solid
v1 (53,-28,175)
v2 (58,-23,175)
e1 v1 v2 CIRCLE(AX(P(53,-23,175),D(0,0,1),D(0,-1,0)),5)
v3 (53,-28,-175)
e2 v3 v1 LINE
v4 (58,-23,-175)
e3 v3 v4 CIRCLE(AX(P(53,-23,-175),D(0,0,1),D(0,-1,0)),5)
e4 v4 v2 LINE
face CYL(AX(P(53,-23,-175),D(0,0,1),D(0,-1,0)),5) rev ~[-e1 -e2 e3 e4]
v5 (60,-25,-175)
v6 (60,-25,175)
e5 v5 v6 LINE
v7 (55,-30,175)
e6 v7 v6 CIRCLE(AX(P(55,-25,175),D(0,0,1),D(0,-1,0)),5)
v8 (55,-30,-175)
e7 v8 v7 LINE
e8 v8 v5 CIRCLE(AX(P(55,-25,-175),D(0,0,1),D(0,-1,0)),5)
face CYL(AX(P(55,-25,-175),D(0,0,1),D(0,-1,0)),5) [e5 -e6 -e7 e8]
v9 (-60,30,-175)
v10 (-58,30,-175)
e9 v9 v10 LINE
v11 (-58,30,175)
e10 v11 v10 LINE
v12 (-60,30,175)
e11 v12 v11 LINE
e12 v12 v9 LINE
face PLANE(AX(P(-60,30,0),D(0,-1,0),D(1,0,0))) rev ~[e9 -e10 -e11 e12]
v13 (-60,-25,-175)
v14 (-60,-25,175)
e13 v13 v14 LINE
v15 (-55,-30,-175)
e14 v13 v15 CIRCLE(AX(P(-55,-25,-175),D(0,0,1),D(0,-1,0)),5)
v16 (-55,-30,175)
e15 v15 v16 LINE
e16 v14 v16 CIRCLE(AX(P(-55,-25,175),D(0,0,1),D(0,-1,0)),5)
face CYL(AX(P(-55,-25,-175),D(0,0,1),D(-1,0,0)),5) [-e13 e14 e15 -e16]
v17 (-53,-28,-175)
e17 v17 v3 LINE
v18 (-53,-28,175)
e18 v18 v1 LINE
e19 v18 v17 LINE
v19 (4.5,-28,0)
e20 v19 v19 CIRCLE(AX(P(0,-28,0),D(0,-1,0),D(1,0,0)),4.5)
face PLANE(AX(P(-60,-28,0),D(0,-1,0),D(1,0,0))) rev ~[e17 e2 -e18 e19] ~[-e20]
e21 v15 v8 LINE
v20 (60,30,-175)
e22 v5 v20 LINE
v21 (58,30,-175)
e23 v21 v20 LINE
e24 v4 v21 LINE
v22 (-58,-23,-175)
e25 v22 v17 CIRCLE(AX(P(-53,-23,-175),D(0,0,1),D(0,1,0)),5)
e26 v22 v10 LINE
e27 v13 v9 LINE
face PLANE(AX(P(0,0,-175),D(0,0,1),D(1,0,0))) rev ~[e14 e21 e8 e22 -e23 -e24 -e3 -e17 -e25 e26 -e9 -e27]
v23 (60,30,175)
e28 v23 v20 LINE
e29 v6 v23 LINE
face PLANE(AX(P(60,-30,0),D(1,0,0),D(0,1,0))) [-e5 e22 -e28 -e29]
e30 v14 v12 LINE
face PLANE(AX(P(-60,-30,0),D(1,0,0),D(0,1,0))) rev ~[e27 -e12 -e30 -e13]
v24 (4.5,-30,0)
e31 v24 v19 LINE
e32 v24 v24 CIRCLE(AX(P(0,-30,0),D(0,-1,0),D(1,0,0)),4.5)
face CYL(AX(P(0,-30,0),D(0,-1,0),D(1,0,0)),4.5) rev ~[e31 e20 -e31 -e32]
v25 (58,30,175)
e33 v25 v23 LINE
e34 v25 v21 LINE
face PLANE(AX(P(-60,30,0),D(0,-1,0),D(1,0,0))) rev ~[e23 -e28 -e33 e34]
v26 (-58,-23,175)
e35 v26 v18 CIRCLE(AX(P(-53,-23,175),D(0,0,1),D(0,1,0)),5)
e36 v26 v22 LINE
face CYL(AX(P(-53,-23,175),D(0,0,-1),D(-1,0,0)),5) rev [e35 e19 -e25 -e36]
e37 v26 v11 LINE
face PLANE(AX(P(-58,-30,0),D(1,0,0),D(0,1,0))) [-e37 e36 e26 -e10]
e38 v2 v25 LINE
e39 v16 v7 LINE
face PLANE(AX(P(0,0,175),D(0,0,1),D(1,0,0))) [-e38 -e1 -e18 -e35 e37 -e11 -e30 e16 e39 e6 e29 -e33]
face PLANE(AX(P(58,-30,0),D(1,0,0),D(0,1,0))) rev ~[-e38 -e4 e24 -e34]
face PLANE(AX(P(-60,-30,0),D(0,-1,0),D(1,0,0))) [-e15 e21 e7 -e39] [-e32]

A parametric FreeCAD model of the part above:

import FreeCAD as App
import Part
import Sketcher
from FreeCAD import Vector
Q = App.Units.Quantity


def edges_at(feature, points):
    """Names of the edges that pass closest to the given points."""
    edges = feature.Shape.Edges
    near = lambda p: min(range(len(edges)), key=lambda i: edges[i].distToShape(Part.Vertex(*p))[0])
    return sorted({f"Edge{near(p) + 1}" for p in points})


def faces_at(feature, points):
    """Names of the faces that lie closest to the given points."""
    faces = feature.Shape.Faces
    near = lambda p: min(range(len(faces)), key=lambda i: faces[i].distToShape(Part.Vertex(*p))[0])
    return sorted({f"Face{near(p) + 1}" for p in points})


def add_polygon(sketch, points):
    """Adds a closed chain of lines whose ends are joined by coincident constraints."""
    first, n = sketch.GeometryCount, len(points)
    for a, b in zip(points, points[1:] + points[:1]):
        sketch.addGeometry(Part.LineSegment(App.Vector(*a, 0), App.Vector(*b, 0)), False)
    for i in range(n):
        sketch.addConstraint(Sketcher.Constraint("Coincident", first + i, 2, first + (i + 1) % n, 1))

doc = App.newDocument("Part")
body = doc.addObject("PartDesign::Body", "Body")

sketch1 = doc.addObject("Sketcher::SketchObject", "Sketch")
body.addObject(sketch1)
sketch1.AttachmentSupport = (doc.XY_Plane, [""])
sketch1.MapMode = "FlatFace"
add_polygon(sketch1, [(-60, 30), (-60, -30), (60, -30), (60, 30)])
sketch1.addConstraint([
    Sketcher.Constraint("Vertical", 0),
    Sketcher.Constraint("Horizontal", 1),
    Sketcher.Constraint("Vertical", 2),
    Sketcher.Constraint("Horizontal", 3),
    Sketcher.Constraint("Symmetric", 0, 2, 2, 2, -1, 1),
    Sketcher.Constraint("DistanceX", 1, 1, 1, 2, Q("120 mm")),
    Sketcher.Constraint("DistanceY", 0, 2, 0, 1, Q("60 mm")),
])
pad1 = doc.addObject("PartDesign::Pad", "Pad")
body.addObject(pad1)
pad1.Profile = sketch1
pad1.Length = 350
pad1.Midplane = True
doc.recompute()

thickness = doc.addObject("PartDesign::Thickness", "Thickness")
body.addObject(thickness)
thickness.Base = (pad1, faces_at(pad1, [(0, 30, 0), (0, 0, 175), (0, 0, -175)]))
thickness.Value = 2
thickness.Reversed = True
thickness.Join = "Arc"
doc.recompute()

fillet = doc.addObject("PartDesign::Fillet", "Fillet")
body.addObject(fillet)
fillet.Base = (thickness, edges_at(thickness, [
    (60, -30, 0),
    (-58, -28, 0),
    (58, -28, 0),
    (-60, -30, 0),
]))
fillet.Radius = 5

sketch2 = doc.addObject("Sketcher::SketchObject", "Sketch001")
body.addObject(sketch2)
sketch2.AttachmentSupport = (doc.XZ_Plane, [""])
sketch2.MapMode = "FlatFace"
sketch2.AttachmentOffset = App.Placement(Vector(0, 0, 30), App.Rotation())
sketch2.addGeometry(Part.Circle(Vector(0, 0, 0), Vector(0, 0, 1), 4.5), False)
sketch2.addConstraint([
    Sketcher.Constraint("Coincident", 0, 3, -1, 1),
    Sketcher.Constraint("Diameter", 0, Q("9 mm")),
])
pocket1 = doc.addObject("PartDesign::Pocket", "Pocket")
body.addObject(pocket1)
pocket1.Profile = sketch2
pocket1.Type = "ThroughAll"

doc.recompute()
